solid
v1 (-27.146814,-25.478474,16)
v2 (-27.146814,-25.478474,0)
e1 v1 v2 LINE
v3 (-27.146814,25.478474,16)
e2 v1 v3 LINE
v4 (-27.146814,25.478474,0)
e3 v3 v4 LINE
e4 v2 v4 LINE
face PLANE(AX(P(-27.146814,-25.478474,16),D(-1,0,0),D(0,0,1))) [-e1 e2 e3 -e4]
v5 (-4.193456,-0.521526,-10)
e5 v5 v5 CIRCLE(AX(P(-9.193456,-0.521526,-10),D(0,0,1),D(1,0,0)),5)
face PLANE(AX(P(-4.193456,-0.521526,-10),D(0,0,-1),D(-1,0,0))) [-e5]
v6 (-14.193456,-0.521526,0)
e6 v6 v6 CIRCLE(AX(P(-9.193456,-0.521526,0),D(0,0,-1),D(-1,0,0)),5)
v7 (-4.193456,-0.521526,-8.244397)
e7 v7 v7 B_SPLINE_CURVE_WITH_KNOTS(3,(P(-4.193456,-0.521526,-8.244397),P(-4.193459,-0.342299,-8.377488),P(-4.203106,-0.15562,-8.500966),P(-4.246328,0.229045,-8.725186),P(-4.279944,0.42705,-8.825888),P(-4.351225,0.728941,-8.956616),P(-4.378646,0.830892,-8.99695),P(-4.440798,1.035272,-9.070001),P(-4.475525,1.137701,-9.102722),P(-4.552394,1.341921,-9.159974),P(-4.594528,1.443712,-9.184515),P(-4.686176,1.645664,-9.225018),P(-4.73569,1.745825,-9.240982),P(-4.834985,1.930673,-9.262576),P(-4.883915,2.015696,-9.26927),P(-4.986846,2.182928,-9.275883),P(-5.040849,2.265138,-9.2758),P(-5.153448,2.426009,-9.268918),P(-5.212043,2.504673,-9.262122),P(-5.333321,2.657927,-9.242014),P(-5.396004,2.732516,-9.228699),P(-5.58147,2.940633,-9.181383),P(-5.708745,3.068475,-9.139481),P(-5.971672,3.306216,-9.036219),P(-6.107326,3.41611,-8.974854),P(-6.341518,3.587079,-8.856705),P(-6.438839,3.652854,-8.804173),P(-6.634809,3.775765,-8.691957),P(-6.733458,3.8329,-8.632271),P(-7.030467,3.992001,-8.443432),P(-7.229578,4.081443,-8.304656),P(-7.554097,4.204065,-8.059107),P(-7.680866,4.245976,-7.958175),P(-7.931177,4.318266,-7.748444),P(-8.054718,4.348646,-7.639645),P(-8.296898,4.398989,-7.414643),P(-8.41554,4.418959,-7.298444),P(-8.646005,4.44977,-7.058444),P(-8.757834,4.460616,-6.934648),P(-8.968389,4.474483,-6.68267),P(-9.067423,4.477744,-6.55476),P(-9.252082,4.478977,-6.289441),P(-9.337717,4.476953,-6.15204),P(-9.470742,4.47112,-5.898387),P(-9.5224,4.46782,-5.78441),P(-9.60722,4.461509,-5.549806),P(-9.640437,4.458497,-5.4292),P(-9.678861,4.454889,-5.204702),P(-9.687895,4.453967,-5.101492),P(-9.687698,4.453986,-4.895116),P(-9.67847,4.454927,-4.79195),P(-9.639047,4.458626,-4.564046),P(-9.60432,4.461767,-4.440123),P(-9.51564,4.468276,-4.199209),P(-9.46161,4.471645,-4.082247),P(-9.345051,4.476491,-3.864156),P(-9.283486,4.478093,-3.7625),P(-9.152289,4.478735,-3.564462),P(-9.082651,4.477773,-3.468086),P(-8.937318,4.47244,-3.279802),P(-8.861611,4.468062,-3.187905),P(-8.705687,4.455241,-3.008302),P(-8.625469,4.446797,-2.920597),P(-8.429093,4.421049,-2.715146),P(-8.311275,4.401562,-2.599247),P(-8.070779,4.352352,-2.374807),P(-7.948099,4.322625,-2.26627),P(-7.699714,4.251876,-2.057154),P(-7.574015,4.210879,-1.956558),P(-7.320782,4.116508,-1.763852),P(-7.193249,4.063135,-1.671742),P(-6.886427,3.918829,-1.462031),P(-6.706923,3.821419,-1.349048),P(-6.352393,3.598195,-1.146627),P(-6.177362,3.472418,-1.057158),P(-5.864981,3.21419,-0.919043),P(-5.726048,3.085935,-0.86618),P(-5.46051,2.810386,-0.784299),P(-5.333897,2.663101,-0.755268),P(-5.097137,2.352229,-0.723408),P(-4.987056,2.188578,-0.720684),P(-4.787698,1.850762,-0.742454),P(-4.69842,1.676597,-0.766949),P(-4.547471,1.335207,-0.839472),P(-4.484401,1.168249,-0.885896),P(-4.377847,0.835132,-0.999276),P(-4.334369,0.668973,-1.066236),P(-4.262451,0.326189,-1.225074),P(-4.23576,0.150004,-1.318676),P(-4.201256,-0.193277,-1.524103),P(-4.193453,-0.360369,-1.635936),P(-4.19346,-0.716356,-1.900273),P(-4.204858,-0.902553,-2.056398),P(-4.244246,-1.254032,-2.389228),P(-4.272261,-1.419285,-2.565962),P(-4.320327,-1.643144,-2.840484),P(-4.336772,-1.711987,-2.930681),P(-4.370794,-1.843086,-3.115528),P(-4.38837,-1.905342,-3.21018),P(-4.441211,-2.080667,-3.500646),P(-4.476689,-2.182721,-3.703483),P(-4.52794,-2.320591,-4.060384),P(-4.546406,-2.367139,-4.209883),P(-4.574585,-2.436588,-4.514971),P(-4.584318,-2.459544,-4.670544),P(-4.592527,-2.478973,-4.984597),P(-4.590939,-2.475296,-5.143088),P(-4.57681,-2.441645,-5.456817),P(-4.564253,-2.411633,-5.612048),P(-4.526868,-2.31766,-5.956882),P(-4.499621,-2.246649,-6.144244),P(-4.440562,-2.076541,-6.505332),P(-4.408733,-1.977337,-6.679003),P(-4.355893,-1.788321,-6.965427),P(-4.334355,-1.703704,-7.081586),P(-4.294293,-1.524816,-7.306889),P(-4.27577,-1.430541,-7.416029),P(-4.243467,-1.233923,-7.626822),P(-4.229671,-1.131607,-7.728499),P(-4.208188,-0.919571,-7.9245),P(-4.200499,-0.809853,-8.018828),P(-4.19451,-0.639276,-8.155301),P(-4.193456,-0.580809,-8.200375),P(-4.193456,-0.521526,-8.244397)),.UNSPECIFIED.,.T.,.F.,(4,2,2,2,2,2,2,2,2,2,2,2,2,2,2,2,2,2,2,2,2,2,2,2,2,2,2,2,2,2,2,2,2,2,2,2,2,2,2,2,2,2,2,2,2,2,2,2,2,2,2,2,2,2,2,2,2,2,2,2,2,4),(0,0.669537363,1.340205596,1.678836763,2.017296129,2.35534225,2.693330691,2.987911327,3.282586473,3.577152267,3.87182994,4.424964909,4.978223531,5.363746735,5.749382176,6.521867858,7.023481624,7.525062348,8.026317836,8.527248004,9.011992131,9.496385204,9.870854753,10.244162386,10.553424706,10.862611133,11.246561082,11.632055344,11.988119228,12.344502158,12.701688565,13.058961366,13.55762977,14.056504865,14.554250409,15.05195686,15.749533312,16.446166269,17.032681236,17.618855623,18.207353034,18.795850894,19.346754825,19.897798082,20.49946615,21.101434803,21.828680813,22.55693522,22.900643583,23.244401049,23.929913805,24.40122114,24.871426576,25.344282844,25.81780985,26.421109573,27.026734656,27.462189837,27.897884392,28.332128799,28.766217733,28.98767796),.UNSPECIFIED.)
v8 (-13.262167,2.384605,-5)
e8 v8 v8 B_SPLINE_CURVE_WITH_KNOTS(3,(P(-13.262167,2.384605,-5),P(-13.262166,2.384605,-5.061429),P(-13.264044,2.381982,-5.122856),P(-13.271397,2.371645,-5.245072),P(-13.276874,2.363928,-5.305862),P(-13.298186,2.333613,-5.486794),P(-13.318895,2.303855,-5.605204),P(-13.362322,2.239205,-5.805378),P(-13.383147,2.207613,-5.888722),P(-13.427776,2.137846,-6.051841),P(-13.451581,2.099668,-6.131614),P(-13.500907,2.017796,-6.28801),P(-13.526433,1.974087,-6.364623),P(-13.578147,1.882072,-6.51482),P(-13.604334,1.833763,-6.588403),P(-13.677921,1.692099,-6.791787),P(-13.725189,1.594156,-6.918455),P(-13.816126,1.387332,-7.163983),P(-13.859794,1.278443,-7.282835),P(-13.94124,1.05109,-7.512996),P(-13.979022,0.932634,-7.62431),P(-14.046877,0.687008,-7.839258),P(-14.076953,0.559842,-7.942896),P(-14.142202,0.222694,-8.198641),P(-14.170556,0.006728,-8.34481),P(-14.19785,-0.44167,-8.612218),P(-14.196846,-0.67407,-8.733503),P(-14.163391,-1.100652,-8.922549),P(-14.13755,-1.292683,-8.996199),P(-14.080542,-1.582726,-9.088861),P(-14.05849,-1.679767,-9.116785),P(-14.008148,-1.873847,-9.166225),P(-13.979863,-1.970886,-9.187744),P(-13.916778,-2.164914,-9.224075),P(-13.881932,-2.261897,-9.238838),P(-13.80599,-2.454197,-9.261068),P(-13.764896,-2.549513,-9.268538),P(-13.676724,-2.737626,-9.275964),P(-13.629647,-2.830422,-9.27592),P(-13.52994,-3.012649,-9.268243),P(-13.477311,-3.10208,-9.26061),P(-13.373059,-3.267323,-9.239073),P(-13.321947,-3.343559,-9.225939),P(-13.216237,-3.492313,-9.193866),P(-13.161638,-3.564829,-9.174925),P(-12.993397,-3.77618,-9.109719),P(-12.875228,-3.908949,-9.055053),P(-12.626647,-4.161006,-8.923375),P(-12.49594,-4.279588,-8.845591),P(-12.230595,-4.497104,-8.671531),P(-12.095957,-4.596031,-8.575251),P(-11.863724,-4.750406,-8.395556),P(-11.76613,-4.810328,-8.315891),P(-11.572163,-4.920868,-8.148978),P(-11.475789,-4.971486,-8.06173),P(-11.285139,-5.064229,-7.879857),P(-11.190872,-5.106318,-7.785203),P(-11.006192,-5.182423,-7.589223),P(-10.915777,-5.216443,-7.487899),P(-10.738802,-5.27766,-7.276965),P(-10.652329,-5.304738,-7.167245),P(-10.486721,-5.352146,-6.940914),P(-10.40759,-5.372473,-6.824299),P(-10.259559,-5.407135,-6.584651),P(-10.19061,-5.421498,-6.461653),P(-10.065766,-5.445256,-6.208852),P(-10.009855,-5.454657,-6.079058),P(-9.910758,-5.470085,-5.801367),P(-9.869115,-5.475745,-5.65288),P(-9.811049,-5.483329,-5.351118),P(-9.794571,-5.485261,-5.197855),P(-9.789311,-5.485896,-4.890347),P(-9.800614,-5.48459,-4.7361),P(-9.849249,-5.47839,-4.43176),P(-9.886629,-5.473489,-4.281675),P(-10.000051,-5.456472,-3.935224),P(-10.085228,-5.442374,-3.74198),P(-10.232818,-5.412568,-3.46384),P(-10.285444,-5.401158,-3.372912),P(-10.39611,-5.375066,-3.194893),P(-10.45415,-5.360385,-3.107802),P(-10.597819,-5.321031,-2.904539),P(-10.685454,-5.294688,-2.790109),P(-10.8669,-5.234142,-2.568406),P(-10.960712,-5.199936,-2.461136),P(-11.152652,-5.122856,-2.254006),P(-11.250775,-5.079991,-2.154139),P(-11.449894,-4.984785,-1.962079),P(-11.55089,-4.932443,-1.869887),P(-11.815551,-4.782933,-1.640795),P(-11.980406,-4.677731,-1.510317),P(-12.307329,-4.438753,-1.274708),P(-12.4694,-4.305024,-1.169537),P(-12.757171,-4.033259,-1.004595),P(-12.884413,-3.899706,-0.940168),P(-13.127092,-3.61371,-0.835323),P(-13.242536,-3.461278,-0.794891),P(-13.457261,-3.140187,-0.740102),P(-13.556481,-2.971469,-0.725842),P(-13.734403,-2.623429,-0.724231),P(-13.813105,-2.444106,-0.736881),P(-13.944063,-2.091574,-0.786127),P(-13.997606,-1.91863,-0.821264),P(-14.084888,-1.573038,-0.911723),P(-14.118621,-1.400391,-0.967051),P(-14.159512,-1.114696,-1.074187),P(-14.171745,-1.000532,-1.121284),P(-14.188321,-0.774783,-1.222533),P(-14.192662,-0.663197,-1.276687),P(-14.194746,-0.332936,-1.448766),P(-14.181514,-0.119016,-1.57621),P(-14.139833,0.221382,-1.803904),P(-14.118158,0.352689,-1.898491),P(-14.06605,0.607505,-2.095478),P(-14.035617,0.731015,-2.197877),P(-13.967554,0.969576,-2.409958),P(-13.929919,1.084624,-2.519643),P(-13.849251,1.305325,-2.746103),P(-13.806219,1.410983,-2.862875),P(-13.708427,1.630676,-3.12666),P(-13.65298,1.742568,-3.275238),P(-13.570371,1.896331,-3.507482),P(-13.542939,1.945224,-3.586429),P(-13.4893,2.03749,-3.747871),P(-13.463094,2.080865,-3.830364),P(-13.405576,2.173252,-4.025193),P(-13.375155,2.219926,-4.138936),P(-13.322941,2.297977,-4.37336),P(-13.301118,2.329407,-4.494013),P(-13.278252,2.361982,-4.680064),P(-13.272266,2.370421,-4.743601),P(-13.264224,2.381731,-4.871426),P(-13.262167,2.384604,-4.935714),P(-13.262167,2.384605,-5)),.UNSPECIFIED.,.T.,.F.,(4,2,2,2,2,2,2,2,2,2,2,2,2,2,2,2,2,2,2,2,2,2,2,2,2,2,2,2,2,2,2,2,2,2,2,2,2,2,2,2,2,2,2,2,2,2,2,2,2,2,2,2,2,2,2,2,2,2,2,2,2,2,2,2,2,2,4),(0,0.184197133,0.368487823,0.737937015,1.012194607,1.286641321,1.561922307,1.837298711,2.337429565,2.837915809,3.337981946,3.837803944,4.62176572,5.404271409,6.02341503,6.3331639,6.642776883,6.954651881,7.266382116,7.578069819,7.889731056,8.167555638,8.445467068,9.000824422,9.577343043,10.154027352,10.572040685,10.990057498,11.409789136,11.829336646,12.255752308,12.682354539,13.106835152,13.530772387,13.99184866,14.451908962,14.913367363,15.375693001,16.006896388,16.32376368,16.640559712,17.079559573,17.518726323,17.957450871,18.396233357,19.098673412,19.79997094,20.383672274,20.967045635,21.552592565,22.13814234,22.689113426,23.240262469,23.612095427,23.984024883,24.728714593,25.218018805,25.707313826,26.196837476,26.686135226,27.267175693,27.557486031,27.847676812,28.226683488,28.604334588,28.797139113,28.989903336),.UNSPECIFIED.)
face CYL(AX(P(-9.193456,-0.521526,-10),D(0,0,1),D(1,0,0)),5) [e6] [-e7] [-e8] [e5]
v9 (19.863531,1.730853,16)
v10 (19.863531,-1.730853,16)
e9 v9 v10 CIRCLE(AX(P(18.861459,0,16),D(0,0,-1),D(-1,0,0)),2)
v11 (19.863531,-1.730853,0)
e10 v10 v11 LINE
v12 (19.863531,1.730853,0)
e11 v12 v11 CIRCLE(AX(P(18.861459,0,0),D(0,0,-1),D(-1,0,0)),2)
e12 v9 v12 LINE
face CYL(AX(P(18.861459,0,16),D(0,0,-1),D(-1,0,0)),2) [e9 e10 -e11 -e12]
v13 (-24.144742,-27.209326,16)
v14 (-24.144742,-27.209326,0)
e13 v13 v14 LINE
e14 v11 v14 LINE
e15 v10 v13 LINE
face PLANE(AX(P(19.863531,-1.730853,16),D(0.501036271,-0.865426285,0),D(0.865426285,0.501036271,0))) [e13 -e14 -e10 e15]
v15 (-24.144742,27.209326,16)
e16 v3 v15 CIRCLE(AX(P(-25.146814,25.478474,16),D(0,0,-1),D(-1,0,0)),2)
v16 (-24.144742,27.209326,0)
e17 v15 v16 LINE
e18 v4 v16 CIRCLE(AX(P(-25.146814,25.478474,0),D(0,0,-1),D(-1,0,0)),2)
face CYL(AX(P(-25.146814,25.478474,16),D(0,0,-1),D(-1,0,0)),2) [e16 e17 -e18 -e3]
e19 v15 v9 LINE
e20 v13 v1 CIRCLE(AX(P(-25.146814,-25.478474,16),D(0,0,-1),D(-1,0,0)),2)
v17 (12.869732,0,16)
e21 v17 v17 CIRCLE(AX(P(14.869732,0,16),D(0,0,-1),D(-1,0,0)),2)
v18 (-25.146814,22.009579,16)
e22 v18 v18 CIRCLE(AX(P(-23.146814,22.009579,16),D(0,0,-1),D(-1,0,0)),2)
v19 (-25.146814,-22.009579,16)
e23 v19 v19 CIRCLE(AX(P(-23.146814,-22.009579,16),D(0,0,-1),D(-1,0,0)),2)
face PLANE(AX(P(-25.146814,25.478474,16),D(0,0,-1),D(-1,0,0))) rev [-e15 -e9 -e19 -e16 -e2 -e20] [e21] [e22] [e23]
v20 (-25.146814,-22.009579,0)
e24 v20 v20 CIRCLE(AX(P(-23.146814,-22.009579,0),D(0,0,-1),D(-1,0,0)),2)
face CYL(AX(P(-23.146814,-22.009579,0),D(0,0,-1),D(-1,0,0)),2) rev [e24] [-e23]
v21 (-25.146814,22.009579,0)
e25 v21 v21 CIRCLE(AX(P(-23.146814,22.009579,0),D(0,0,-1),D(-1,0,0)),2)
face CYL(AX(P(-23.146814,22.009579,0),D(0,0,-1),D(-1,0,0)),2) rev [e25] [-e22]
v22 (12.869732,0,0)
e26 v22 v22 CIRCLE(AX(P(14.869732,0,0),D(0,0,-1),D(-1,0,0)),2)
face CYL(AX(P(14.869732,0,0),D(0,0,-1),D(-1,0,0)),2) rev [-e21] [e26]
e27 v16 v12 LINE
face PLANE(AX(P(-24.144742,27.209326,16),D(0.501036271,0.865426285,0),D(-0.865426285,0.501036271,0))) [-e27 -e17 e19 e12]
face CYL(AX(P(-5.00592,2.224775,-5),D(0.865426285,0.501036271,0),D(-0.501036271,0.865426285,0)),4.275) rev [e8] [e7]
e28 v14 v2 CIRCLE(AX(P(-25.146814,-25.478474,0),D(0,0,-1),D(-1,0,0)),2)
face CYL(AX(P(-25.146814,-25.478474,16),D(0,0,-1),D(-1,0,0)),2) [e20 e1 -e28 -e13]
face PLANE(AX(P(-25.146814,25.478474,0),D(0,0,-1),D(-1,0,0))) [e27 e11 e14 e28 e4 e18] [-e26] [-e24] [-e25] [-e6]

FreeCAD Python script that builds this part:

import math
import FreeCAD as App
import Part
import Sketcher

V = App.Vector
Q = App.Units.Quantity

doc = App.newDocument("Part")
params = doc.addObject("Spreadsheet::Sheet", "Params")
for row, (alias, value) in enumerate([
    ("sketch1_radius", "2 mm"),
    ("pad1_length", "16 mm"),
    ("sketch2_width", "5 mm"),
    ("sketch2_height", "10 mm"),
    ("revolution_angle", "360 deg"),
    ("sketch3_diameter", "4 mm"),
    ("hole_diameter", "4 mm"),
    ("sketch4_diameter", "8.55 mm"),
    ("hole2_diameter", "8.55 mm"),
    ("hole2_depth", "34.043716 mm"),
], start=1):
    params.set(f"A{row}", alias)
    params.set(f"B{row}", "=" + value)
    params.setAlias(f"B{row}", alias)

body = doc.addObject("PartDesign::Body", "Body")

# Sketch on XY plane
sketch1 = body.newObject("Sketcher::SketchObject", "Sketch")
sketch1.AttachmentSupport = (doc.getObject("XY_Plane"), [""])
sketch1.MapMode = "FlatFace"
sketch1.addGeometry([
    Part.LineSegment(V(-24.1, 27.2, 0), V(19.9, 1.7, 0)),  # 0
    Part.ArcOfCircle(Part.Circle(V(18.9, 0, 0), V(0, 0, 1), 2), math.radians(-60), math.radians(60)),  # 1
    Part.LineSegment(V(19.9, -1.7, 0), V(-24.1, -27.2, 0)),  # 2
    Part.ArcOfCircle(Part.Circle(V(-25.1, -25.5, 0), V(0, 0, 1), 2), math.radians(180), math.radians(300)),  # 3
    Part.LineSegment(V(-27.1, -25.5, 0), V(-27.1, 25.5, 0)),  # 4
    Part.ArcOfCircle(Part.Circle(V(-25.1, 25.5, 0), V(0, 0, 1), 2), math.radians(60), math.radians(180)),  # 5
], False)
sketch1.addConstraint([
    Sketcher.Constraint("Tangent", 0, 2, 1, 2),
    Sketcher.Constraint("Tangent", 1, 1, 2, 1),
    Sketcher.Constraint("Tangent", 2, 2, 3, 2),
    Sketcher.Constraint("Tangent", 3, 1, 4, 1),
    Sketcher.Constraint("Tangent", 4, 2, 5, 2),
    Sketcher.Constraint("Tangent", 5, 1, 0, 1),
    Sketcher.Constraint("Vertical", 4),
    Sketcher.Constraint("Equal", 1, 3),
    Sketcher.Constraint("Equal", 3, 5),
    Sketcher.Constraint("Symmetric", 0, 2, 1, 1, -1),
    Sketcher.Constraint("Radius", 1, Q("2 mm")),
    Sketcher.Constraint("DistanceX", 2, 2, 1, 3, Q("43.0062 mm")),
    Sketcher.Constraint("DistanceY", 2, 2, 5, 3, Q("52.6878 mm")),
    Sketcher.Constraint("DistanceX", -1, 1, 1, 3, Q("18.861459 mm")),
])
sketch1.setExpression("Constraints[10]", "Params.sketch1_radius")
pad1 = body.newObject("PartDesign::Pad", "Pad")
pad1.Profile = sketch1
pad1.setExpression("Length", "Params.pad1_length")

# Sketch on XZ plane
sketch2 = body.newObject("Sketcher::SketchObject", "Sketch001")
sketch2.AttachmentSupport = (doc.getObject("XZ_Plane"), [""])
sketch2.MapMode = "FlatFace"
sketch2.AttachmentOffset = App.Placement(V(0, 0, 0.521526), App.Rotation())
sketch2.addGeometry([
    Part.LineSegment(V(-9, -10, 0), V(-9, 0, 0)),
    Part.LineSegment(V(-9, 0, 0), V(-4, 0, 0)),
    Part.LineSegment(V(-4, 0, 0), V(-4, -10, 0)),
    Part.LineSegment(V(-4, -10, 0), V(-9, -10, 0)),
], False)
sketch2.addGeometry(Part.LineSegment(V(-9, -10, 0), V(-9, 0, 0)), True)  # axis
sketch2.addConstraint([
    Sketcher.Constraint("Coincident", 0, 2, 1, 1),
    Sketcher.Constraint("Coincident", 1, 2, 2, 1),
    Sketcher.Constraint("Coincident", 2, 2, 3, 1),
    Sketcher.Constraint("Coincident", 3, 2, 0, 1),
    Sketcher.Constraint("Vertical", 0),
    Sketcher.Constraint("Horizontal", 1),
    Sketcher.Constraint("Vertical", 2),
    Sketcher.Constraint("Horizontal", 3),
    Sketcher.Constraint("Vertical", 4),
    Sketcher.Constraint("Coincident", 4, 1, 3, 2),
    Sketcher.Constraint("PointOnObject", 0, 2, -1),
    Sketcher.Constraint("PointOnObject", 4, 2, -1),
    Sketcher.Constraint("DistanceX", 1, 1, 1, 2, Q("5 mm")),
    Sketcher.Constraint("DistanceY", 0, 1, 0, 2, Q("10 mm")),
    Sketcher.Constraint("DistanceX", 0, 2, -1, 1, Q("9.193456 mm")),
])
sketch2.setExpression("Constraints[12]", "Params.sketch2_width")
sketch2.setExpression("Constraints[13]", "Params.sketch2_height")
revolution = body.newObject("PartDesign::Revolution", "Revolution")
revolution.Profile = sketch2
revolution.ReferenceAxis = (sketch2, ["Axis0"])
revolution.setExpression("Angle", "Params.revolution_angle")

# Sketch on XY plane
sketch3 = body.newObject("Sketcher::SketchObject", "Sketch002")
sketch3.AttachmentSupport = (doc.getObject("XY_Plane"), [""])
sketch3.MapMode = "FlatFace"
sketch3.addGeometry([
    Part.Circle(V(-23.1, -22, 0), V(0, 0, 1), 2),
    Part.Circle(V(14.9, 0, 0), V(0, 0, 1), 2),
    Part.Circle(V(-23.1, 22, 0), V(0, 0, 1), 2),
], False)
sketch3.addConstraint([
    Sketcher.Constraint("Equal", 0, 1),
    Sketcher.Constraint("Equal", 1, 2),
    Sketcher.Constraint("Symmetric", 0, 3, 2, 3, -1),
    Sketcher.Constraint("PointOnObject", 1, 3, -1),
    Sketcher.Constraint("Diameter", 0, Q("4 mm")),
    Sketcher.Constraint("DistanceY", 0, 3, -1, 1, Q("22.009579 mm")),
    Sketcher.Constraint("DistanceX", -1, 1, 1, 3, Q("14.869732 mm")),
    Sketcher.Constraint("DistanceX", 0, 3, -1, 1, Q("23.146814 mm")),
])
sketch3.setExpression("Constraints[4]", "Params.sketch3_diameter")
doc.recompute()
hole = body.newObject("PartDesign::Hole", "Hole")
hole.Profile = sketch3
hole.ThreadType = "None"
hole.setExpression("Diameter", "Params.hole_diameter")
hole.DepthType = "ThroughAll"
hole.Reversed = True

# Sketch on an angled plane
sketch4 = body.newObject("Sketcher::SketchObject", "Sketch003")
sketch4.Placement = App.Placement(V(-2.784563, -1.612115, 0), App.Rotation(V(0, 0, -1), V(-0.501036271, 0.865426285, 0), V(0.865426285, 0.501036271, 0), "ZXY"))
sketch4.addGeometry(Part.Circle(V(5, 4.4, 0), V(0, 0, 1), 4.3), False)
sketch4.addConstraint([
    Sketcher.Constraint("Diameter", 0, Q("8.55 mm")),
    Sketcher.Constraint("DistanceX", -1, 1, 0, 3, Q("5 mm")),
    Sketcher.Constraint("DistanceY", -1, 1, 0, 3, Q("4.433526 mm")),
])
sketch4.setExpression("Constraints[0]", "Params.sketch4_diameter")
doc.recompute()
hole2 = body.newObject("PartDesign::Hole", "Hole001")
hole2.Profile = sketch4
hole2.ThreadType = "None"
hole2.setExpression("Diameter", "Params.hole2_diameter")
hole2.DepthType = "Dimension"
hole2.setExpression("Depth", "Params.hole2_depth")
hole2.DrillPoint = "Flat"

doc.recompute()
